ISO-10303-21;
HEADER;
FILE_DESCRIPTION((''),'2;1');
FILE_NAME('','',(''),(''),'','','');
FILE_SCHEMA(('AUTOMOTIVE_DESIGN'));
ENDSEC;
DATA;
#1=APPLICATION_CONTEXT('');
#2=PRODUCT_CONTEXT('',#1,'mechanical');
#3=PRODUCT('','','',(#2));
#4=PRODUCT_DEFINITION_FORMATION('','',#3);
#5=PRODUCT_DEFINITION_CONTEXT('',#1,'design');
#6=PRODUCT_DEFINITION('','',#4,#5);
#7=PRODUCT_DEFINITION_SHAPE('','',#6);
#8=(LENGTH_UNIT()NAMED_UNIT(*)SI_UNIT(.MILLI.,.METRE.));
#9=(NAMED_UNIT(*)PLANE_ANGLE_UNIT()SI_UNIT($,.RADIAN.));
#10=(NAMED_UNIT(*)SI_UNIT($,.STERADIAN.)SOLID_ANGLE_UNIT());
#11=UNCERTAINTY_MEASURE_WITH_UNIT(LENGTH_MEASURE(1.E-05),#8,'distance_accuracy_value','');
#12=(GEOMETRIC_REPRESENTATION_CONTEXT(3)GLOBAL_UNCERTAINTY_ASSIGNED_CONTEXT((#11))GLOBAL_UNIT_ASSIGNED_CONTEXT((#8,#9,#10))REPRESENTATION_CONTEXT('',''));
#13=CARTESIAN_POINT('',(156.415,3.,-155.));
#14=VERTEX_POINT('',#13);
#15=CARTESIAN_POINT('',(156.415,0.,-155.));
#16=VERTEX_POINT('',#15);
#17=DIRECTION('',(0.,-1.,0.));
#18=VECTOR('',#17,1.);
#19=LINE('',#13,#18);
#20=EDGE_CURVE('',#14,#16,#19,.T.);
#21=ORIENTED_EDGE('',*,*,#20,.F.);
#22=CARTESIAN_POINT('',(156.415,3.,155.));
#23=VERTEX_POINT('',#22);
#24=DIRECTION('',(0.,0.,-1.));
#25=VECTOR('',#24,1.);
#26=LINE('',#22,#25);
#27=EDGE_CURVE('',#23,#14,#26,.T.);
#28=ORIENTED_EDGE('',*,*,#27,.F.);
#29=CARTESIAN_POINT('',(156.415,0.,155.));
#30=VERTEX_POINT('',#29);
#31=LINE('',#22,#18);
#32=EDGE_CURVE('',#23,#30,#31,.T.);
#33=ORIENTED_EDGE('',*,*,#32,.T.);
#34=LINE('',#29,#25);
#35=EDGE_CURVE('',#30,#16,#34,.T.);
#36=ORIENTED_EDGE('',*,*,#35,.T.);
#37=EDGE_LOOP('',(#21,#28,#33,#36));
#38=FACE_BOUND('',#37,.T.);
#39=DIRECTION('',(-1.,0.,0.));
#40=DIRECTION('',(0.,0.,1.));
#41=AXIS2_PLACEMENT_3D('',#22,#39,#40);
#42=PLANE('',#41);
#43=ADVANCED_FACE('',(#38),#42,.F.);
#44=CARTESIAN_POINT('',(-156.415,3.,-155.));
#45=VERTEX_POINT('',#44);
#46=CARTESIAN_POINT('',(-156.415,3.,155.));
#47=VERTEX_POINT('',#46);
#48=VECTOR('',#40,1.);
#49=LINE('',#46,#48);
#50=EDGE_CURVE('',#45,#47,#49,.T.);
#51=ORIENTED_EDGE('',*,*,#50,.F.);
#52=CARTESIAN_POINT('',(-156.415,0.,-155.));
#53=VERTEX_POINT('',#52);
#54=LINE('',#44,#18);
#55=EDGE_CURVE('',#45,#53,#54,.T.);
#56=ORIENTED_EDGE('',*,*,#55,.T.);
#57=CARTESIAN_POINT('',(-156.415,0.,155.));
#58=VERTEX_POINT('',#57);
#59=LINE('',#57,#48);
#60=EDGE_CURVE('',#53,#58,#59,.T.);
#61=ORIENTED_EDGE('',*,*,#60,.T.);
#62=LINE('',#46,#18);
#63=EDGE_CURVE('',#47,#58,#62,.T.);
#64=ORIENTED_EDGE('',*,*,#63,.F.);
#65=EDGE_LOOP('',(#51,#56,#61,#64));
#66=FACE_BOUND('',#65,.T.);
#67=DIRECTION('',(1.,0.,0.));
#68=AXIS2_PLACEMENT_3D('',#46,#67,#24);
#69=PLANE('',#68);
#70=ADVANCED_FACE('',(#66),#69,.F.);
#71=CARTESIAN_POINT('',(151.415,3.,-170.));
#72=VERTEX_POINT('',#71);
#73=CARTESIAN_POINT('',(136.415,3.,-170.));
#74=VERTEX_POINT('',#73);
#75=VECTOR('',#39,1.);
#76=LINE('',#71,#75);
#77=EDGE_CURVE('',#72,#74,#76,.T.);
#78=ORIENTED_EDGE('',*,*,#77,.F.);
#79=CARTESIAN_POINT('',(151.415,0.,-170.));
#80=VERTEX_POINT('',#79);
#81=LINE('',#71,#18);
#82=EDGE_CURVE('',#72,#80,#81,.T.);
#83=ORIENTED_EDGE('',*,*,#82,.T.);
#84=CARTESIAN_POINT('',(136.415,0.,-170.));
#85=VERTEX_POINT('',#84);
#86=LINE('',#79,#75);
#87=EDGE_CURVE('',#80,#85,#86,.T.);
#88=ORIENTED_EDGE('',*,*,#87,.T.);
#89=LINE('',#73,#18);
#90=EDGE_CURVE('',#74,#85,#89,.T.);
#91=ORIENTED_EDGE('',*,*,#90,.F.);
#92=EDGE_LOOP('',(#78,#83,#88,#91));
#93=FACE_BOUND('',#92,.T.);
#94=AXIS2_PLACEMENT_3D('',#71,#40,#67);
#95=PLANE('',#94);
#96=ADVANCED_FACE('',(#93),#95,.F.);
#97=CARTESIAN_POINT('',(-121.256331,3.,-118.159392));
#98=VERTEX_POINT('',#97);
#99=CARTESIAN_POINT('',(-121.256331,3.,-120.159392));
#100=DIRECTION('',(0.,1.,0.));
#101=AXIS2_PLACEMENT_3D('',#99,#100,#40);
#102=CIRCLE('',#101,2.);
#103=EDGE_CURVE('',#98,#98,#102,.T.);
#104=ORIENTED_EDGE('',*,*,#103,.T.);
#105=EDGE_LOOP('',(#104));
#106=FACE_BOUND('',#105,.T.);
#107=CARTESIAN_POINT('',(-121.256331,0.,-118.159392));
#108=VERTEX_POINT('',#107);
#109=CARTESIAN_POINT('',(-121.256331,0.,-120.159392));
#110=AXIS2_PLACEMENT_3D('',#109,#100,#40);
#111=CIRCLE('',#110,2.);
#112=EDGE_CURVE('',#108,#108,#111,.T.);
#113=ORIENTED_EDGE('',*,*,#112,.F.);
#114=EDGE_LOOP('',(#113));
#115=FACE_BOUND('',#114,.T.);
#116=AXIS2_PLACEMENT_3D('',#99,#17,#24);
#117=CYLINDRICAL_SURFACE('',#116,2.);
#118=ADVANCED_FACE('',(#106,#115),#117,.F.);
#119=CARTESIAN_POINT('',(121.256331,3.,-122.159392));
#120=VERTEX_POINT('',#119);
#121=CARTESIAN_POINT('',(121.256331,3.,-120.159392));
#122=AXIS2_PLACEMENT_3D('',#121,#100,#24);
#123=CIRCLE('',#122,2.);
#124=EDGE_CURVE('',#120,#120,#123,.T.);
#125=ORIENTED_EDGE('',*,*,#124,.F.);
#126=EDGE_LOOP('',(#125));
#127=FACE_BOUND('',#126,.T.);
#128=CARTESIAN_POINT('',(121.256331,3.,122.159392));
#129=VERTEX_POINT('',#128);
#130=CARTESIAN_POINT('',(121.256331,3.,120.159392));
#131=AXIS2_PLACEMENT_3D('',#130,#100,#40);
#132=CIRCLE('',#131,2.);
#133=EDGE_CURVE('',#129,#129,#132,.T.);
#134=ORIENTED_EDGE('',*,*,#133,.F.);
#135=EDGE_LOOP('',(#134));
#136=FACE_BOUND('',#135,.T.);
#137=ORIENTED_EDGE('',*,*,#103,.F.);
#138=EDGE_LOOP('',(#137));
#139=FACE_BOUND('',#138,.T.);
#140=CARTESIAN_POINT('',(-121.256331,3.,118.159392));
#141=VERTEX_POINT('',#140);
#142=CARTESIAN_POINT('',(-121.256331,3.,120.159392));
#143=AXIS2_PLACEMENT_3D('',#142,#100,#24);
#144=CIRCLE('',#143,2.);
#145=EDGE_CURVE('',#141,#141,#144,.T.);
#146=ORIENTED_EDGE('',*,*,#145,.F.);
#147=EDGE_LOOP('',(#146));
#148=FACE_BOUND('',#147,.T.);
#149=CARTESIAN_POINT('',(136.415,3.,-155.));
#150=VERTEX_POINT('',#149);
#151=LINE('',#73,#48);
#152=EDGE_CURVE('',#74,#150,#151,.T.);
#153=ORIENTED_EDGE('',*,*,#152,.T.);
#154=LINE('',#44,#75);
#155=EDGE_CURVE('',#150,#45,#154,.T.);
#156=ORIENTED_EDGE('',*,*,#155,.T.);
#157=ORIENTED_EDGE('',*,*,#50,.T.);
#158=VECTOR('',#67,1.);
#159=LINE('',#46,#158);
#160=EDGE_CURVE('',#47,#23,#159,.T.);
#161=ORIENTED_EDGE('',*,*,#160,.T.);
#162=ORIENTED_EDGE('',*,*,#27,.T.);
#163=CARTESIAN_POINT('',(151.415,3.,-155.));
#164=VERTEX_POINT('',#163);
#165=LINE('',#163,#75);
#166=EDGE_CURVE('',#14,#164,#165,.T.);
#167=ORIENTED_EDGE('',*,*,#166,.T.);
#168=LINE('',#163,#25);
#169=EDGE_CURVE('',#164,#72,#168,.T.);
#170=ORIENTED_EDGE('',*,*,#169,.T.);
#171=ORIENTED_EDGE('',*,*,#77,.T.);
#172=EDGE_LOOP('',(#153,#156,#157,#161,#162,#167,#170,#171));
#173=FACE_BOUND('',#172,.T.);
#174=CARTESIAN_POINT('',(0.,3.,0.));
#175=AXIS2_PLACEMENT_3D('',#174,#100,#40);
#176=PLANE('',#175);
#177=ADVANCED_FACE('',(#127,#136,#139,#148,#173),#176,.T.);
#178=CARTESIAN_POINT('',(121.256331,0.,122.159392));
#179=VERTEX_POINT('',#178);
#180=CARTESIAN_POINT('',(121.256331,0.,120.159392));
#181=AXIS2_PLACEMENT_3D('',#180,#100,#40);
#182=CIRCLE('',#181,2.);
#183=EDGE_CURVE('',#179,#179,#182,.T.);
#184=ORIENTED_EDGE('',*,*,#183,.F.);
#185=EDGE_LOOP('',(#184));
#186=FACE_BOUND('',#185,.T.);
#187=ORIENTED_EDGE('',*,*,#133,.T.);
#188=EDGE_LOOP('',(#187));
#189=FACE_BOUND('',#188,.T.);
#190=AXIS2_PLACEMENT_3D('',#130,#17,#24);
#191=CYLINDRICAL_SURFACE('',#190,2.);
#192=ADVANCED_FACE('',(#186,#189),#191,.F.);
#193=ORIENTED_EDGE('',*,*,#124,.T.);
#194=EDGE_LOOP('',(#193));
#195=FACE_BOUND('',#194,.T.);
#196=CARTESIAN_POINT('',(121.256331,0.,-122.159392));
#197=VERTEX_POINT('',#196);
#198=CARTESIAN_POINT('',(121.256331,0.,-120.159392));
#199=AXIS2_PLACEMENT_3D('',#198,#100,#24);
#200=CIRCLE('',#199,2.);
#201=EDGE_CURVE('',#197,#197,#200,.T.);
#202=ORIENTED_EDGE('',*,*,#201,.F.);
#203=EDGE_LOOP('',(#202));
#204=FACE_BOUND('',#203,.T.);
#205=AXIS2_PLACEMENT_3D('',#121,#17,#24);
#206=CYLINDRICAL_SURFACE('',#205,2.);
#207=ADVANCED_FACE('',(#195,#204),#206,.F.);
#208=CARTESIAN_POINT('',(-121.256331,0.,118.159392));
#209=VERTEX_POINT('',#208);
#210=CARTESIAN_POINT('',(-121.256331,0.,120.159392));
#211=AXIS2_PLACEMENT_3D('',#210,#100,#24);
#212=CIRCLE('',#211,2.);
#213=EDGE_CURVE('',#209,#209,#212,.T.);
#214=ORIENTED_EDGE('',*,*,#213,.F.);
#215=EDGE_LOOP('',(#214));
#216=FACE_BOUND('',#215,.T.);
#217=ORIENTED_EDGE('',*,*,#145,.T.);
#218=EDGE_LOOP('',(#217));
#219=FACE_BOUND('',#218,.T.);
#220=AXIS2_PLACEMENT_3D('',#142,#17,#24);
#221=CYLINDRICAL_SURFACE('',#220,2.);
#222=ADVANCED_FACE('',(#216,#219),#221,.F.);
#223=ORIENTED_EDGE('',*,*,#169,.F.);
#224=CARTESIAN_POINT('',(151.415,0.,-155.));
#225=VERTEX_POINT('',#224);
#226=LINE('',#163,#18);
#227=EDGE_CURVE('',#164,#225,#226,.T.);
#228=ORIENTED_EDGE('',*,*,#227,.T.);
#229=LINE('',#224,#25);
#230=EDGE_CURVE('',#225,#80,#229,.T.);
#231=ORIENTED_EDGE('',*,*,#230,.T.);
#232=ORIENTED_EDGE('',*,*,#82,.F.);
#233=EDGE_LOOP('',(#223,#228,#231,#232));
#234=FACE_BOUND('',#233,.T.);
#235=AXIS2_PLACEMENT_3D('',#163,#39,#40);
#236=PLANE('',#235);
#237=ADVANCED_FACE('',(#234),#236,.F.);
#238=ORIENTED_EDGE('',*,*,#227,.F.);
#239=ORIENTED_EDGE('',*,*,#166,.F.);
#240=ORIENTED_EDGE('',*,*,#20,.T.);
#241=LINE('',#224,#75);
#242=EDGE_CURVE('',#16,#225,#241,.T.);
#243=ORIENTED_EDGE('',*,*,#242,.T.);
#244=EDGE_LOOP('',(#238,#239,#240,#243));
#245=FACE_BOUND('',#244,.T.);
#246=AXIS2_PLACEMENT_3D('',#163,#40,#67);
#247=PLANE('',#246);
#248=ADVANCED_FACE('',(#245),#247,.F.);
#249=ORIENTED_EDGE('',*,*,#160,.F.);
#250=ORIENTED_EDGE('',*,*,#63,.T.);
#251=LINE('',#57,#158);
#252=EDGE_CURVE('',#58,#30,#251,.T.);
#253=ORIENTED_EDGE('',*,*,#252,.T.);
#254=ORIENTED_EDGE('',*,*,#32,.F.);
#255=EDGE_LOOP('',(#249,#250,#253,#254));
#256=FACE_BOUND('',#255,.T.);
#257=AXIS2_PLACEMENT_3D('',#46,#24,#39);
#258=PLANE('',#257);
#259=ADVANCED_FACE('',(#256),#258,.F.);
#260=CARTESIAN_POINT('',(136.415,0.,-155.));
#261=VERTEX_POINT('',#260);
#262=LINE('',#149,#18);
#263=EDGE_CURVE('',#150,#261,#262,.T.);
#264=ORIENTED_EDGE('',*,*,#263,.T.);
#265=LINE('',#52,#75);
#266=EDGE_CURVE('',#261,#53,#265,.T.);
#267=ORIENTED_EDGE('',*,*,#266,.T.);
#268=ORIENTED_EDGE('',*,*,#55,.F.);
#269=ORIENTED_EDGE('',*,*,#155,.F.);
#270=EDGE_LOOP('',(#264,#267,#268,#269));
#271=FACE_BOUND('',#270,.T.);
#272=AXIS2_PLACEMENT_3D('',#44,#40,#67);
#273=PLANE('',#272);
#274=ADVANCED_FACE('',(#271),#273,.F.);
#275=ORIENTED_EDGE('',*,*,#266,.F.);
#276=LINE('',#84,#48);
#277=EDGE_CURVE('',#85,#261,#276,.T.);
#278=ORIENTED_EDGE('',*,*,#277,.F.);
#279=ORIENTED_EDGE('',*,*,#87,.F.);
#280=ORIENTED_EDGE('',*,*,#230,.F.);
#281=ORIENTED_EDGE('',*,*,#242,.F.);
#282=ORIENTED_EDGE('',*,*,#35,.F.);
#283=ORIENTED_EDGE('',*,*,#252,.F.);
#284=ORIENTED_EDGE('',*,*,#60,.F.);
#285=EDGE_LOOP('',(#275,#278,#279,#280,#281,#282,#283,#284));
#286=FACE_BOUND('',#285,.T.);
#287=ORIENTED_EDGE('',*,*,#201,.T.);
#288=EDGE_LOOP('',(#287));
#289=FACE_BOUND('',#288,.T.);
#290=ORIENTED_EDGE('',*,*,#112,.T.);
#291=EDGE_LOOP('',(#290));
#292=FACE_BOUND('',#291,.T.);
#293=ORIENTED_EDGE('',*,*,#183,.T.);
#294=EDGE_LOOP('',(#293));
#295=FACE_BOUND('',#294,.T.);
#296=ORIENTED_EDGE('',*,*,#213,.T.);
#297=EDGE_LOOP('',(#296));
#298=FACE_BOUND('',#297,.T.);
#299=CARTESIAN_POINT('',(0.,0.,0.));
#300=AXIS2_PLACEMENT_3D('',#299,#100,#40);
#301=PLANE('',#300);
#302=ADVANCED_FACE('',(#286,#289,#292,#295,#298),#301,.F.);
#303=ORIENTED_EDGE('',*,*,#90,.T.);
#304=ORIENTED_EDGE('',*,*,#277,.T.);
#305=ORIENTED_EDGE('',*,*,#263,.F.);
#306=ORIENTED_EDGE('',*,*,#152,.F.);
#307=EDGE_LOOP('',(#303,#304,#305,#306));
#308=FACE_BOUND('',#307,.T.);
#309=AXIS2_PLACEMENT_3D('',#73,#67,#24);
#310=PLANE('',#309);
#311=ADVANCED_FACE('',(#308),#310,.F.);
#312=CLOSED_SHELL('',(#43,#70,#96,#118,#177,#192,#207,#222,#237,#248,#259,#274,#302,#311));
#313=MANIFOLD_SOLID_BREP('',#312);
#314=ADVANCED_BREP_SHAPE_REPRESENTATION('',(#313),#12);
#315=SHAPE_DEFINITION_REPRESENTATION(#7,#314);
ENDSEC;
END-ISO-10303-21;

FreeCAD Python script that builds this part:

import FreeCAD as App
import Part
import Sketcher

V = App.Vector


def add_polygon(sketch, points):
    """Adds a closed chain of lines whose ends are joined by coincident constraints."""
    first, n = sketch.GeometryCount, len(points)
    for a, b in zip(points, points[1:] + points[:1]):
        sketch.addGeometry(Part.LineSegment(App.Vector(*a, 0), App.Vector(*b, 0)), False)
    for i in range(n):
        sketch.addConstraint(Sketcher.Constraint("Coincident", first + i, 2, first + (i + 1) % n, 1))

doc = App.newDocument("Part")
body = doc.addObject("PartDesign::Body", "Body")

# Sketch on XZ plane
sketch1 = body.newObject("Sketcher::SketchObject", "Sketch")
sketch1.AttachmentSupport = (doc.getObject("XZ_Plane"), [""])
sketch1.MapMode = "FlatFace"
add_polygon(sketch1, [(-156.4, 155), (156.4, 155), (156.4, -155), (151.4, -155), (151.4, -170), (136.4, -170), (136.4, -155), (-156.4, -155)])  # lines 0-7
sketch1.addGeometry(Part.Circle(V(-121.3, 120.2, 0), V(0, 0, 1), 2), False)  # 8
sketch1.addGeometry(Part.Circle(V(121.3, 120.2, 0), V(0, 0, 1), 2), False)  # 9
sketch1.addGeometry(Part.Circle(V(-121.3, -120.2, 0), V(0, 0, 1), 2), False)  # 10
sketch1.addGeometry(Part.Circle(V(121.3, -120.2, 0), V(0, 0, 1), 2), False)  # 11
sketch1.addConstraint([
    Sketcher.Constraint("Horizontal", 0),
    Sketcher.Constraint("Vertical", 1),
    Sketcher.Constraint("Horizontal", 2),
    Sketcher.Constraint("Vertical", 3),
    Sketcher.Constraint("Horizontal", 4),
    Sketcher.Constraint("Vertical", 5),
    Sketcher.Constraint("Horizontal", 6),
    Sketcher.Constraint("Vertical", 7),
    Sketcher.Constraint("Equal", 8, 9),
    Sketcher.Constraint("Equal", 9, 10),
    Sketcher.Constraint("Equal", 10, 11),
    Sketcher.Constraint("Symmetric", 9, 3, 10, 3, -1, 1),
    Sketcher.Constraint("Symmetric", 8, 3, 11, 3, -1, 1),
    Sketcher.Constraint("Symmetric", 0, 2, 6, 2, -1, 1),
    Sketcher.Constraint("Symmetric", 8, 3, 9, 3, -2),
    Sketcher.Constraint("Horizontal", 2, 2, 5, 2),
    Sketcher.Constraint("Equal", 4, 3),
    Sketcher.Constraint("Diameter", 8, 4.0),
    Sketcher.Constraint("DistanceX", 2, 2, 2, 1, 5.0),
    Sketcher.Constraint("DistanceX", 4, 2, 4, 1, 15.0),
    Sketcher.Constraint("DistanceY", 1, 2, 1, 1, 310.0),
    Sketcher.Constraint("DistanceX", 0, 1, 0, 2, 312.83),
    Sketcher.Constraint("DistanceX", 8, 3, -1, 1, 121.256331),
    Sketcher.Constraint("DistanceY", -1, 1, 8, 3, 120.159392),
])
pad1 = body.newObject("PartDesign::Pad", "Pad")
pad1.Profile = sketch1
pad1.Length = 3
pad1.Reversed = True

doc.recompute()
